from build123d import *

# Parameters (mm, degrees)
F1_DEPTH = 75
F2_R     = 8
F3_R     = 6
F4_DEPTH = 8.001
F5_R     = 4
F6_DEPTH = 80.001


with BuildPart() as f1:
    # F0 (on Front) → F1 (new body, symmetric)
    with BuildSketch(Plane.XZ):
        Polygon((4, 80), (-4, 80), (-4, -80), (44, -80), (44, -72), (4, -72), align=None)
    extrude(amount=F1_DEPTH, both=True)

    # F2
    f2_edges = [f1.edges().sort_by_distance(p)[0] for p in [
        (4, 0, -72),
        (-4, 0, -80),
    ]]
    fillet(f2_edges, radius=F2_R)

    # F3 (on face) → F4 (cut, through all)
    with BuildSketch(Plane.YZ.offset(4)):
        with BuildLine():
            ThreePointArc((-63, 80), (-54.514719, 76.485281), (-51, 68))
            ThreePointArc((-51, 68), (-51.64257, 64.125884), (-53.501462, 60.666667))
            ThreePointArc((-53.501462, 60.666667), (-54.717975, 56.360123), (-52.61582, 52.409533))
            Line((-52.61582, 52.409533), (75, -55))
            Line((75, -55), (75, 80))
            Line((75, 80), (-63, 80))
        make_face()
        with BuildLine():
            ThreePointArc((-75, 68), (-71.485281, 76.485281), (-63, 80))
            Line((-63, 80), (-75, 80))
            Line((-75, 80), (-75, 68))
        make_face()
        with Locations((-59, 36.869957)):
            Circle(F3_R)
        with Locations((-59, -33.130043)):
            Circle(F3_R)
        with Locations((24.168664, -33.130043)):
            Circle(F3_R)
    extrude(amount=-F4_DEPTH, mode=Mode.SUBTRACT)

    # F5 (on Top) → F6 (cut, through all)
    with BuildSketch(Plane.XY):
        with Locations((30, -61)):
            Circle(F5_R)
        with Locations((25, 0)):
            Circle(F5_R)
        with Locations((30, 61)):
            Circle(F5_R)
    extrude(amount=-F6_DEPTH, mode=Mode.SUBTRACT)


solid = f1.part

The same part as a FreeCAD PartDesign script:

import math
import FreeCAD as App
import Part
import Sketcher
from FreeCAD import Vector


def edges_at(feature, points):
    """Names of the edges that pass closest to the given points."""
    edges = feature.Shape.Edges
    near = lambda p: min(range(len(edges)), key=lambda i: edges[i].distToShape(Part.Vertex(*p))[0])
    return sorted({f"Edge{near(p) + 1}" for p in points})

doc = App.newDocument("Part")
body = doc.addObject("PartDesign::Body", "Body")

sketch1 = body.newObject("Sketcher::SketchObject", "Sketch")
sketch1.AttachmentSupport = (doc.getObject("XZ_Plane"), [""])
sketch1.MapMode = "FlatFace"
sketch1.addGeometry([
    Part.LineSegment(Vector(4, 80, 0), Vector(-4, 80, 0)),
    Part.LineSegment(Vector(-4, 80, 0), Vector(-4, -80, 0)),
    Part.LineSegment(Vector(-4, -80, 0), Vector(44, -80, 0)),
    Part.LineSegment(Vector(44, -80, 0), Vector(44, -72, 0)),
    Part.LineSegment(Vector(44, -72, 0), Vector(4, -72, 0)),
    Part.LineSegment(Vector(4, -72, 0), Vector(4, 80, 0)),
], False)
sketch1.addConstraint([
    Sketcher.Constraint("Coincident", 0, 2, 1, 1),
    Sketcher.Constraint("Coincident", 1, 2, 2, 1),
    Sketcher.Constraint("Coincident", 2, 2, 3, 1),
    Sketcher.Constraint("Coincident", 3, 2, 4, 1),
    Sketcher.Constraint("Coincident", 4, 2, 5, 1),
    Sketcher.Constraint("Coincident", 5, 2, 0, 1),
    Sketcher.Constraint("Horizontal", 0),
    Sketcher.Constraint("Vertical", 1),
    Sketcher.Constraint("Horizontal", 2),
    Sketcher.Constraint("Vertical", 3),
    Sketcher.Constraint("Horizontal", 4),
    Sketcher.Constraint("Vertical", 5),
    Sketcher.Constraint("Symmetric", 1, 2, 5, 2, -1, 1),
    Sketcher.Constraint("Equal", 0, 3),
    Sketcher.Constraint("DistanceX", 0, 2, 0, 1, 8.0),
    Sketcher.Constraint("DistanceX", 2, 1, 2, 2, 48.0),
    Sketcher.Constraint("DistanceY", 1, 2, 1, 1, 160.0),
])
pad1 = body.newObject("PartDesign::Pad", "Pad")
pad1.Profile = sketch1
pad1.Length = 150
pad1.Midplane = True
doc.recompute()

fillet = body.newObject("PartDesign::Fillet", "Fillet")
fillet.Base = (pad1, edges_at(pad1, [(4, 0, -72), (-4, 0, -80)]))
fillet.Radius = 8

sketch2 = body.newObject("Sketcher::SketchObject", "Sketch001")
sketch2.AttachmentSupport = (doc.getObject("YZ_Plane"), [""])
sketch2.MapMode = "FlatFace"
sketch2.AttachmentOffset = App.Placement(Vector(0, 0, 4), App.Rotation())
sketch2.addGeometry([
    Part.ArcOfCircle(Part.Circle(Vector(-63, 68, 0), Vector(0, 0, 1), 12), math.radians(0), math.radians(90)),
    Part.ArcOfCircle(Part.Circle(Vector(-63, 68, 0), Vector(0, 0, 1), 12), math.radians(-38), math.radians(0)),
    Part.ArcOfCircle(Part.Circle(Vector(-49, 57, 0), Vector(0, 0, 1), 6), math.radians(142), math.radians(230)),
    Part.LineSegment(Vector(-53, 52, 0), Vector(75, -55, 0)),
    Part.LineSegment(Vector(75, -55, 0), Vector(75, 80, 0)),
    Part.LineSegment(Vector(75, 80, 0), Vector(-63, 80, 0)),
    Part.ArcOfCircle(Part.Circle(Vector(-63, 68, 0), Vector(0, 0, 1), 12), math.radians(90), math.radians(180)),
    Part.LineSegment(Vector(-63, 80, 0), Vector(-75, 80, 0)),
    Part.LineSegment(Vector(-75, 80, 0), Vector(-75, 68, 0)),
    Part.Circle(Vector(-59, 37, 0), Vector(0, 0, 1), 6),
    Part.Circle(Vector(-59, -33, 0), Vector(0, 0, 1), 6),
    Part.Circle(Vector(24, -33, 0), Vector(0, 0, 1), 6),
], False)
sketch2.addConstraint([
    Sketcher.Constraint("Tangent", 0, 1, 1, 2),
    Sketcher.Constraint("Tangent", 1, 1, 2, 1),
    Sketcher.Constraint("Tangent", 2, 2, 3, 1),
    Sketcher.Constraint("Coincident", 3, 2, 4, 1),
    Sketcher.Constraint("Coincident", 4, 2, 5, 1),
    Sketcher.Constraint("Tangent", 5, 2, 0, 2),
    Sketcher.Constraint("Tangent", 6, 1, 7, 1),
    Sketcher.Constraint("Coincident", 7, 2, 8, 1),
    Sketcher.Constraint("Tangent", 8, 2, 6, 2),
    Sketcher.Constraint("Vertical", 4),
    Sketcher.Constraint("Horizontal", 5),
    Sketcher.Constraint("Horizontal", 7),
    Sketcher.Constraint("Vertical", 8),
    Sketcher.Constraint("Coincident", 6, 3, 0, 3),
    Sketcher.Constraint("Equal", 0, 6),
    Sketcher.Constraint("Equal", 2, 9),
    Sketcher.Constraint("Equal", 9, 10),
    Sketcher.Constraint("Equal", 10, 11),
    Sketcher.Constraint("Horizontal", 10, 3, 11, 3),
    Sketcher.Constraint("Horizontal", 6, 3, 0, 1),
    Sketcher.Constraint("Vertical", 9, 3, 10, 3),
    Sketcher.Constraint("Diameter", 9, 12.0),
    Sketcher.Constraint("Radius", 0, 12.000001),
    Sketcher.Constraint("DistanceX", 5, 2, 5, 1, 138.0),
    Sketcher.Constraint("DistanceY", 4, 1, 4, 2, 135.0),
    Sketcher.Constraint("DistanceX", 0, 3, -1, 1, 63.000001),
    Sketcher.Constraint("DistanceY", -1, 1, 0, 3, 67.999999),
    Sketcher.Constraint("DistanceY", -1, 1, 2, 3, 57.0),
    Sketcher.Constraint("DistanceX", 9, 3, -1, 1, 59.0),
    Sketcher.Constraint("DistanceY", 10, 3, 9, 3, 70.0),
    Sketcher.Constraint("Radius", 1, 12.000005),
    Sketcher.Constraint("DistanceY", 9, 3, 6, 3, 31.130042),
    Sketcher.Constraint("DistanceX", -1, 1, 11, 3, 24.168664),
])
pocket1 = body.newObject("PartDesign::Pocket", "Pocket")
pocket1.Profile = sketch2
pocket1.Type = "ThroughAll"

sketch3 = body.newObject("Sketcher::SketchObject", "Sketch002")
sketch3.AttachmentSupport = (doc.getObject("XY_Plane"), [""])
sketch3.MapMode = "FlatFace"
sketch3.addGeometry([
    Part.Circle(Vector(30, -61, 0), Vector(0, 0, 1), 4),
    Part.Circle(Vector(25, 0, 0), Vector(0, 0, 1), 4),
    Part.Circle(Vector(30, 61, 0), Vector(0, 0, 1), 4),
], False)
sketch3.addConstraint([
    Sketcher.Constraint("Equal", 0, 1),
    Sketcher.Constraint("Equal", 1, 2),
    Sketcher.Constraint("Symmetric", 0, 3, 2, 3, -1),
    Sketcher.Constraint("PointOnObject", 1, 3, -1),
    Sketcher.Constraint("Diameter", 0, 8.0),
    Sketcher.Constraint("DistanceX", -1, 1, 0, 3, 30.0),
    Sketcher.Constraint("DistanceY", 0, 3, -1, 1, 61.0),
    Sketcher.Constraint("DistanceX", -1, 1, 1, 3, 25.0),
])
pocket2 = body.newObject("PartDesign::Pocket", "Pocket001")
pocket2.Profile = sketch3
pocket2.Type = "ThroughAll"

doc.recompute()
